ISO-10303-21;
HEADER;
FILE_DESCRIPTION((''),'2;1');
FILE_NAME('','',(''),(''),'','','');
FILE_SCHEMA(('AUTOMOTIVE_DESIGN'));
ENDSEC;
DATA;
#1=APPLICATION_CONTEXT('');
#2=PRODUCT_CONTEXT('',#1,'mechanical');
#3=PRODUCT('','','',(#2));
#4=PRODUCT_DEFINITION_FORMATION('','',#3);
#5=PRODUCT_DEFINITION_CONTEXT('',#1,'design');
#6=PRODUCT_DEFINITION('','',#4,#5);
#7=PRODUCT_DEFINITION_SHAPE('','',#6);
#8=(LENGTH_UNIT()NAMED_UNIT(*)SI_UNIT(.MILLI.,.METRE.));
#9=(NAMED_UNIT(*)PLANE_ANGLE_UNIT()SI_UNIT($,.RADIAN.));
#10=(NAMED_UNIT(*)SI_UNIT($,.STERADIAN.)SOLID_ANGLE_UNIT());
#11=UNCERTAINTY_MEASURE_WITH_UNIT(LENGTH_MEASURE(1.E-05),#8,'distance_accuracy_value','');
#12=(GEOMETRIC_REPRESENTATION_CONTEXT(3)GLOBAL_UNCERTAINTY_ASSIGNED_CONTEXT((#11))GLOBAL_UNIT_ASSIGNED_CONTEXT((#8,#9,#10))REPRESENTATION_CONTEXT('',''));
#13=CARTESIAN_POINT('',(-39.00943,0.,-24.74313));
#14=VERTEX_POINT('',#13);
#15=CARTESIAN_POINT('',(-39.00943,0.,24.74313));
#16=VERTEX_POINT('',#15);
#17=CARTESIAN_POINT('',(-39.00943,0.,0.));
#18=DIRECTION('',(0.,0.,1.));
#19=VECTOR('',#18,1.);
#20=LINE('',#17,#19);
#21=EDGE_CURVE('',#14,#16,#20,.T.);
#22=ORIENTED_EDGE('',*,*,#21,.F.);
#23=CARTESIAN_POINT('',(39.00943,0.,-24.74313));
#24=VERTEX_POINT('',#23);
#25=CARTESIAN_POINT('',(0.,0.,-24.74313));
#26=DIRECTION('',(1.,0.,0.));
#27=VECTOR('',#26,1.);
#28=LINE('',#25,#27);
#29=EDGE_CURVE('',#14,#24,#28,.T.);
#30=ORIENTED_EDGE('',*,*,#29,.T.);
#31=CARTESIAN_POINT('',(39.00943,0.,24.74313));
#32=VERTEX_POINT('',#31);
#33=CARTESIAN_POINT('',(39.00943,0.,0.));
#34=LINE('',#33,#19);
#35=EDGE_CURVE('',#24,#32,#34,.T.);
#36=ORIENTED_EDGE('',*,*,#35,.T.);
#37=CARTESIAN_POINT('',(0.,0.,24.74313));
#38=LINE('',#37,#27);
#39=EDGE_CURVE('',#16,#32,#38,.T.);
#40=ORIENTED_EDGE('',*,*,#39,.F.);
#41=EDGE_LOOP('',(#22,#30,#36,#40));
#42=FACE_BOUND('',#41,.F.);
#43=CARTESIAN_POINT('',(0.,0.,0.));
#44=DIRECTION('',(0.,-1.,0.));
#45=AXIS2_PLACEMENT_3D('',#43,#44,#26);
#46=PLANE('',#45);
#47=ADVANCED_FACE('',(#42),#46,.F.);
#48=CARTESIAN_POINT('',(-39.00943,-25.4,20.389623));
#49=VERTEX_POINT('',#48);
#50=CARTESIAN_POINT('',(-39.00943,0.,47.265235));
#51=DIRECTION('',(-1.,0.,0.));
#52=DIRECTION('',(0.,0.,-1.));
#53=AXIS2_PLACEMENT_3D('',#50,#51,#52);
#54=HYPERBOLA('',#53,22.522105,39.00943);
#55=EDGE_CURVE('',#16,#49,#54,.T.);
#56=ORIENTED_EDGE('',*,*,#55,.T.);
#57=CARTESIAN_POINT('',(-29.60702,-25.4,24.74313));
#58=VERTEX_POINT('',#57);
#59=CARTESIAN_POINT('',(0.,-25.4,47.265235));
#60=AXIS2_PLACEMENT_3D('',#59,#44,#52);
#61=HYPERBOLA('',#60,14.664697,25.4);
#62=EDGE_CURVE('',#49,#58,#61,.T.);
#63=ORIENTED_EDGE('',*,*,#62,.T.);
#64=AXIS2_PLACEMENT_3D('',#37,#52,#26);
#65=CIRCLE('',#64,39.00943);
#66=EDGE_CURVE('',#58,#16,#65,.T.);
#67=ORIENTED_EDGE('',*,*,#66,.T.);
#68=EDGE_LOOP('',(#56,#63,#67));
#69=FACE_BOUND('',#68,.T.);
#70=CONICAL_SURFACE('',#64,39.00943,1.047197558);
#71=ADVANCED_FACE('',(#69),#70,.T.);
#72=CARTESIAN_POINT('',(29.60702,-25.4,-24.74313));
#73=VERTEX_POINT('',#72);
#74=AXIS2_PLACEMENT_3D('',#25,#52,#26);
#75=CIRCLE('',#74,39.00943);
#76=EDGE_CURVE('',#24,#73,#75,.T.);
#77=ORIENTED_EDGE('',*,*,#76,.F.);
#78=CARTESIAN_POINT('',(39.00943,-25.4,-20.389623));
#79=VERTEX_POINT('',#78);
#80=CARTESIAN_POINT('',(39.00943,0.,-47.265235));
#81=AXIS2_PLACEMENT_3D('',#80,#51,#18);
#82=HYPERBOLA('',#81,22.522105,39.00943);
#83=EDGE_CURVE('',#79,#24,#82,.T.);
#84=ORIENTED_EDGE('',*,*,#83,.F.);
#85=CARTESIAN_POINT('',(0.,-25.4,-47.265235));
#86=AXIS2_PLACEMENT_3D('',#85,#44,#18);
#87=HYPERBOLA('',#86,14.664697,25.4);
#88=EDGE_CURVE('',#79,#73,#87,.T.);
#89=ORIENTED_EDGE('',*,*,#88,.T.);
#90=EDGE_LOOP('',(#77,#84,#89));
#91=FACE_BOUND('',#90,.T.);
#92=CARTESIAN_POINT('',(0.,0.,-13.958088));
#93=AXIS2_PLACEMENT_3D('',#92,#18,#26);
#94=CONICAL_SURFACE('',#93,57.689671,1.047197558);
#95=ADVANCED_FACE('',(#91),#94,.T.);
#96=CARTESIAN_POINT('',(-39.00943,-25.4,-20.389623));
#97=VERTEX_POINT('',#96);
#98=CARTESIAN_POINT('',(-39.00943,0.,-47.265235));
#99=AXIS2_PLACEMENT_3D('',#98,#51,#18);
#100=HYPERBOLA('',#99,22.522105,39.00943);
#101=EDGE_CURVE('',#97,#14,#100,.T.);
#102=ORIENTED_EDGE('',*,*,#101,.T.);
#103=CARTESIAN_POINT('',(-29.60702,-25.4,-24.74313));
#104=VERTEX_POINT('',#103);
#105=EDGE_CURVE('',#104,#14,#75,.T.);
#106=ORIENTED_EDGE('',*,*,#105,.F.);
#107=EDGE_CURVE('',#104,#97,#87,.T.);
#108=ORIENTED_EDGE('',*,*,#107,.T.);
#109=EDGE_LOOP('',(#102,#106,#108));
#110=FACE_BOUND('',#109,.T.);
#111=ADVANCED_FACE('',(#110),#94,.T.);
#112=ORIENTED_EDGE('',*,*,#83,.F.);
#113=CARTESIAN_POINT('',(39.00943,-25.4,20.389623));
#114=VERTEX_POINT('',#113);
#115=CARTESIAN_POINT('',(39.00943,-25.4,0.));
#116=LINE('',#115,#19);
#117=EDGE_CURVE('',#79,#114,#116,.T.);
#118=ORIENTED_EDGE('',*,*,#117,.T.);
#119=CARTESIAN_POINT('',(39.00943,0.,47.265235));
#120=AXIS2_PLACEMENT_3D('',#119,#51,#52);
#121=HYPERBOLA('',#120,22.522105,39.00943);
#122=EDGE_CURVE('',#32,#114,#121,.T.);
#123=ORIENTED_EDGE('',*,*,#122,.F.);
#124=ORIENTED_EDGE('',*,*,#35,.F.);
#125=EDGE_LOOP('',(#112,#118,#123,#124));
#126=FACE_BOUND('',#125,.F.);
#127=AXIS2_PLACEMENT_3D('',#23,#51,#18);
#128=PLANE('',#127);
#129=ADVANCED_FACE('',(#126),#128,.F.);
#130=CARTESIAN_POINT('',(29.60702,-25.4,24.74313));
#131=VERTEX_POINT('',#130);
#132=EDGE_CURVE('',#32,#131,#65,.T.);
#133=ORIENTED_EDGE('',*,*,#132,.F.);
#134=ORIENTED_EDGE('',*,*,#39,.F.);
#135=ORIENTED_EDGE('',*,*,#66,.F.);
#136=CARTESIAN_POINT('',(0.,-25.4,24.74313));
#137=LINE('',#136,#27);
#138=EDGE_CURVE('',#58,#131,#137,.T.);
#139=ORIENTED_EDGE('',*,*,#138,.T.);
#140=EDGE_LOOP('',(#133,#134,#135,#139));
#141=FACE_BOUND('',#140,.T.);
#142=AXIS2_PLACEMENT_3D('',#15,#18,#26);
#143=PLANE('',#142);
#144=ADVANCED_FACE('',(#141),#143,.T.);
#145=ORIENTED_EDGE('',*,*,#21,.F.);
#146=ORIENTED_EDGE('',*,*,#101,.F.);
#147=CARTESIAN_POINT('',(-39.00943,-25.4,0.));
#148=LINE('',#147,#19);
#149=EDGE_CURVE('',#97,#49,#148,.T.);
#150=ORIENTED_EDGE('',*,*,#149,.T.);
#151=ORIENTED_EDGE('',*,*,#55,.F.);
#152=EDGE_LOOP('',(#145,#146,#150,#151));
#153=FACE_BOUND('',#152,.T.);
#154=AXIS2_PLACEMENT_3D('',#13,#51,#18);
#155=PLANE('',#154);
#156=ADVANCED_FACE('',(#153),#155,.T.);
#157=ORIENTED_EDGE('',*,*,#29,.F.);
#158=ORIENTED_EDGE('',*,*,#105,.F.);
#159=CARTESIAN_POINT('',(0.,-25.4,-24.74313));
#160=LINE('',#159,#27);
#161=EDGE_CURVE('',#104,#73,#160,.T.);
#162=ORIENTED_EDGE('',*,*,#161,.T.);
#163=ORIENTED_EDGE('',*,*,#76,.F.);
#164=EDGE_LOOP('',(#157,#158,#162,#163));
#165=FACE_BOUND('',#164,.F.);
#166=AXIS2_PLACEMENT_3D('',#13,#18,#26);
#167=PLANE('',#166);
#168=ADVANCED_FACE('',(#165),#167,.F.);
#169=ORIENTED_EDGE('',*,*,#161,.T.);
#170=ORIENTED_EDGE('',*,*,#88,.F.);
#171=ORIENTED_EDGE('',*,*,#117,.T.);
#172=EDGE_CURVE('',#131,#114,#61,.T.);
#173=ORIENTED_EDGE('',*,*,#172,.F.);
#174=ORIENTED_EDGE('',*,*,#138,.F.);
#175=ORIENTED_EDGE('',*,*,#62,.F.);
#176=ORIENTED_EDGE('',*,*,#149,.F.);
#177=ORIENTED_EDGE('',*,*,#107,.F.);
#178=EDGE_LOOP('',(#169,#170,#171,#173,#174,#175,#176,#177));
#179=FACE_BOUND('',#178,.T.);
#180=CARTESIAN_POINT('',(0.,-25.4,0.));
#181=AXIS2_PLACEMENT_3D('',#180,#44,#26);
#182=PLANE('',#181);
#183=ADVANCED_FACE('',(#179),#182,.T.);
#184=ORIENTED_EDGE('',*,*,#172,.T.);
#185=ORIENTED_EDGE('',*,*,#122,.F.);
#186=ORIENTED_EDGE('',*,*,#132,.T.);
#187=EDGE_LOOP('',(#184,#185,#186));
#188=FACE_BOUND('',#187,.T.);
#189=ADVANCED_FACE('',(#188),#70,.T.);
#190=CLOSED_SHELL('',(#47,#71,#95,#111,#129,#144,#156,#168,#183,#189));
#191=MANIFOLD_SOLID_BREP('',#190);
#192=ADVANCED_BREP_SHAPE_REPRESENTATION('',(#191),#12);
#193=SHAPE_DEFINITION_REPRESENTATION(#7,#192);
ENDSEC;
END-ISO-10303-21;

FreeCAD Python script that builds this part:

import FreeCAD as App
import Part
import Sketcher

V = App.Vector
Q = App.Units.Quantity


def add_polygon(sketch, points):
    """Adds a closed chain of lines whose ends are joined by coincident constraints."""
    first, n = sketch.GeometryCount, len(points)
    for a, b in zip(points, points[1:] + points[:1]):
        sketch.addGeometry(Part.LineSegment(App.Vector(*a, 0), App.Vector(*b, 0)), False)
    for i in range(n):
        sketch.addConstraint(Sketcher.Constraint("Coincident", first + i, 2, first + (i + 1) % n, 1))

doc = App.newDocument("Part")
body = doc.addObject("PartDesign::Body", "Body")

# Sketch on XZ plane
sketch1 = doc.addObject("Sketcher::SketchObject", "Sketch")
body.addObject(sketch1)
sketch1.AttachmentSupport = (doc.XZ_Plane, [""])
sketch1.MapMode = "FlatFace"
add_polygon(sketch1, [(-39.00943, 24.74313), (-39.00943, -24.74313), (39.00943, -24.74313), (39.00943, 24.74313)])  # lines 0-3
sketch1.addConstraint([
    Sketcher.Constraint("Vertical", 0),
    Sketcher.Constraint("Horizontal", 1),
    Sketcher.Constraint("Vertical", 2),
    Sketcher.Constraint("Horizontal", 3),
    Sketcher.Constraint("Symmetric", 0, 2, 2, 2, -1, 1),
    Sketcher.Constraint("DistanceX", 1, 1, 1, 2, Q("78.01886 mm")),
    Sketcher.Constraint("DistanceY", 0, 2, 0, 1, Q("49.48626 mm")),
])
pad1 = doc.addObject("PartDesign::Pad", "Pad")
body.addObject(pad1)
pad1.Profile = sketch1
pad1.Length = Q("1 in")

# Sketch on XZ plane
sketch2 = doc.addObject("Sketcher::SketchObject", "Sketch001")
body.addObject(sketch2)
sketch2.AttachmentSupport = (doc.XZ_Plane, [""])
sketch2.MapMode = "FlatFace"
add_polygon(sketch2, [(57.689671, 24.74313), (39.00943, 24.74313), (57.689671, 13.958088)])  # lines 0-2
add_polygon(sketch2, [(57.689671, -13.958088), (39.00943, -24.74313), (57.689671, -24.74313)])  # lines 3-5
sketch2.addConstraint([
    Sketcher.Constraint("Horizontal", 0),
    Sketcher.Constraint("Vertical", 2),
    Sketcher.Constraint("Horizontal", 4),
    Sketcher.Constraint("Vertical", 5),
    Sketcher.Constraint("Symmetric", 0, 2, 3, 2, -1),
    Sketcher.Constraint("Symmetric", 1, 2, 5, 2, -1),
    Sketcher.Constraint("Angle", 1, Q("-30 deg")),
    Sketcher.Constraint("DistanceX", 0, 2, 0, 1, Q("18.680241 mm")),
    Sketcher.Constraint("DistanceX", -1, 1, 0, 2, Q("39.00943 mm")),
    Sketcher.Constraint("DistanceY", -1, 1, 0, 2, Q("24.74313 mm")),
])
groove = doc.addObject("PartDesign::Groove", "Groove")
body.addObject(groove)
groove.Profile = sketch2
groove.ReferenceAxis = (sketch2, ["V_Axis"])
groove.Angle = 360

doc.recompute()
